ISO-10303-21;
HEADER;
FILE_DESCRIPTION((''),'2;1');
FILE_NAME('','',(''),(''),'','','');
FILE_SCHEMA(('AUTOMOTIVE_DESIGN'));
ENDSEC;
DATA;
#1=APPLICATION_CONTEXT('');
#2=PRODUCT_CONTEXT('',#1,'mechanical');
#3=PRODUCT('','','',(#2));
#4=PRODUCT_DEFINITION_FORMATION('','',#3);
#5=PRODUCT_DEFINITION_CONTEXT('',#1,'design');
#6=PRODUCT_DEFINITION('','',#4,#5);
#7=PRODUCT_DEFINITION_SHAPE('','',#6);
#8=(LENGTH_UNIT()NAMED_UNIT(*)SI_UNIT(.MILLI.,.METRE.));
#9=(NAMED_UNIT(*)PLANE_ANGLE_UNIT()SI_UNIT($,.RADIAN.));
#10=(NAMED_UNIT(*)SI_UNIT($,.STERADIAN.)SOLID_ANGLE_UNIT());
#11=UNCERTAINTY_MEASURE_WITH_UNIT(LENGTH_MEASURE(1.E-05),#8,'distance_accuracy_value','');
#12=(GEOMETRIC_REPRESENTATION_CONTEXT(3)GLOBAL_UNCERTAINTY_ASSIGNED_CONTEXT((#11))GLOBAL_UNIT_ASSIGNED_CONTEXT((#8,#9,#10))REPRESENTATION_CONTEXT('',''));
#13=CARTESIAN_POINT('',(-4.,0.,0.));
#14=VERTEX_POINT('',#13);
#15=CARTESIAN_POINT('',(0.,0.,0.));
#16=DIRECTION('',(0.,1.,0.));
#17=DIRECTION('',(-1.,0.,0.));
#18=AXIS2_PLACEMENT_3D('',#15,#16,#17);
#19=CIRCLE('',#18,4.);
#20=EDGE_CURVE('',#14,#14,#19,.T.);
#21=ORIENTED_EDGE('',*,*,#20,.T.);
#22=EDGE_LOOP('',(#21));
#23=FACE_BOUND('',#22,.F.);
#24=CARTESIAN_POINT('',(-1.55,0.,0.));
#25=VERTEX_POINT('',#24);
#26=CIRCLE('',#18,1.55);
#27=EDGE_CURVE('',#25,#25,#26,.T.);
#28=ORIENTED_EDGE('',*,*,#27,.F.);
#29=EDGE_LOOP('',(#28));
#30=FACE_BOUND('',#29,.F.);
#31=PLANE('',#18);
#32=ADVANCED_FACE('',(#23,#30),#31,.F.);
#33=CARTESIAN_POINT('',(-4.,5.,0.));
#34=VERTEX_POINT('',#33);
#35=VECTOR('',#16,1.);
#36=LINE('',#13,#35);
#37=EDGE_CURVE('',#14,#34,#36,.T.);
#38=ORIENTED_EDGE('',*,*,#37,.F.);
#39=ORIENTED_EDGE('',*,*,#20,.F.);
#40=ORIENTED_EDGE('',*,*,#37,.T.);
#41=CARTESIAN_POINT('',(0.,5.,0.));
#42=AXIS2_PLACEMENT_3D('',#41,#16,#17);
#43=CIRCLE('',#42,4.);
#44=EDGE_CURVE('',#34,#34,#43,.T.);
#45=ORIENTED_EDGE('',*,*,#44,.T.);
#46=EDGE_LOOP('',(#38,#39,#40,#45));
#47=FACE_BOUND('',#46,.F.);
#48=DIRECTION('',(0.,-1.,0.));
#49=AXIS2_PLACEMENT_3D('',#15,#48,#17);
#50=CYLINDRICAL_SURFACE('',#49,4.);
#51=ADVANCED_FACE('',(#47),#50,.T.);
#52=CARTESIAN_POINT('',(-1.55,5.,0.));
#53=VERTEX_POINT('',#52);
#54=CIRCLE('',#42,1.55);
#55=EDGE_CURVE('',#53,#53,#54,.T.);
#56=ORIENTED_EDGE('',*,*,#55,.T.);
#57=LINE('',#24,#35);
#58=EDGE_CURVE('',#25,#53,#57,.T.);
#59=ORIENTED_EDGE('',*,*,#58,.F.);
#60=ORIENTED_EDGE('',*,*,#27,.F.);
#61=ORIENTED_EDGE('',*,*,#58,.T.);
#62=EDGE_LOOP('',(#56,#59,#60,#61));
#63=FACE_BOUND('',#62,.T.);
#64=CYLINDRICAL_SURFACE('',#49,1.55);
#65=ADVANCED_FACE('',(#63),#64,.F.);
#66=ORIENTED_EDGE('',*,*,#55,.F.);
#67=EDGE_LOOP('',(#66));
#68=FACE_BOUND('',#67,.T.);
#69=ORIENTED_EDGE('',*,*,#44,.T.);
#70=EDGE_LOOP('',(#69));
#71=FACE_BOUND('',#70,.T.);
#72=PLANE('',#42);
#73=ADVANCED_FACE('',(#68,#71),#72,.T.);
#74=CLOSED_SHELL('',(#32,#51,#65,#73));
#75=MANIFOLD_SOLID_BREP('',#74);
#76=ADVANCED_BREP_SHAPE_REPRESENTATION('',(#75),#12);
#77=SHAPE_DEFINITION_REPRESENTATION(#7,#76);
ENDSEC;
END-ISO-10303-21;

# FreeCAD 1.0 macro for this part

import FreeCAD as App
import Part
import Sketcher

V = App.Vector

doc = App.newDocument("Part")
body = doc.addObject("PartDesign::Body", "Body")

# Sketch on XZ plane
sketch1 = body.newObject("Sketcher::SketchObject", "Sketch")
sketch1.AttachmentSupport = (doc.getObject("XZ_Plane"), [""])
sketch1.MapMode = "FlatFace"
sketch1.addGeometry([
    Part.Circle(V(0, 0, 0), V(0, 0, 1), 4),
    Part.Circle(V(0, 0, 0), V(0, 0, 1), 1.55),
], False)
sketch1.addConstraint([
    Sketcher.Constraint("Coincident", 0, 3, -1, 1),
    Sketcher.Constraint("Coincident", 1, 3, -1, 1),
    Sketcher.Constraint("Diameter", 0, 8.0),
    Sketcher.Constraint("Diameter", 1, 3.1),
])
pad1 = body.newObject("PartDesign::Pad", "Pad")
pad1.Profile = sketch1
pad1.Length = 5
pad1.Reversed = True

doc.recompute()
